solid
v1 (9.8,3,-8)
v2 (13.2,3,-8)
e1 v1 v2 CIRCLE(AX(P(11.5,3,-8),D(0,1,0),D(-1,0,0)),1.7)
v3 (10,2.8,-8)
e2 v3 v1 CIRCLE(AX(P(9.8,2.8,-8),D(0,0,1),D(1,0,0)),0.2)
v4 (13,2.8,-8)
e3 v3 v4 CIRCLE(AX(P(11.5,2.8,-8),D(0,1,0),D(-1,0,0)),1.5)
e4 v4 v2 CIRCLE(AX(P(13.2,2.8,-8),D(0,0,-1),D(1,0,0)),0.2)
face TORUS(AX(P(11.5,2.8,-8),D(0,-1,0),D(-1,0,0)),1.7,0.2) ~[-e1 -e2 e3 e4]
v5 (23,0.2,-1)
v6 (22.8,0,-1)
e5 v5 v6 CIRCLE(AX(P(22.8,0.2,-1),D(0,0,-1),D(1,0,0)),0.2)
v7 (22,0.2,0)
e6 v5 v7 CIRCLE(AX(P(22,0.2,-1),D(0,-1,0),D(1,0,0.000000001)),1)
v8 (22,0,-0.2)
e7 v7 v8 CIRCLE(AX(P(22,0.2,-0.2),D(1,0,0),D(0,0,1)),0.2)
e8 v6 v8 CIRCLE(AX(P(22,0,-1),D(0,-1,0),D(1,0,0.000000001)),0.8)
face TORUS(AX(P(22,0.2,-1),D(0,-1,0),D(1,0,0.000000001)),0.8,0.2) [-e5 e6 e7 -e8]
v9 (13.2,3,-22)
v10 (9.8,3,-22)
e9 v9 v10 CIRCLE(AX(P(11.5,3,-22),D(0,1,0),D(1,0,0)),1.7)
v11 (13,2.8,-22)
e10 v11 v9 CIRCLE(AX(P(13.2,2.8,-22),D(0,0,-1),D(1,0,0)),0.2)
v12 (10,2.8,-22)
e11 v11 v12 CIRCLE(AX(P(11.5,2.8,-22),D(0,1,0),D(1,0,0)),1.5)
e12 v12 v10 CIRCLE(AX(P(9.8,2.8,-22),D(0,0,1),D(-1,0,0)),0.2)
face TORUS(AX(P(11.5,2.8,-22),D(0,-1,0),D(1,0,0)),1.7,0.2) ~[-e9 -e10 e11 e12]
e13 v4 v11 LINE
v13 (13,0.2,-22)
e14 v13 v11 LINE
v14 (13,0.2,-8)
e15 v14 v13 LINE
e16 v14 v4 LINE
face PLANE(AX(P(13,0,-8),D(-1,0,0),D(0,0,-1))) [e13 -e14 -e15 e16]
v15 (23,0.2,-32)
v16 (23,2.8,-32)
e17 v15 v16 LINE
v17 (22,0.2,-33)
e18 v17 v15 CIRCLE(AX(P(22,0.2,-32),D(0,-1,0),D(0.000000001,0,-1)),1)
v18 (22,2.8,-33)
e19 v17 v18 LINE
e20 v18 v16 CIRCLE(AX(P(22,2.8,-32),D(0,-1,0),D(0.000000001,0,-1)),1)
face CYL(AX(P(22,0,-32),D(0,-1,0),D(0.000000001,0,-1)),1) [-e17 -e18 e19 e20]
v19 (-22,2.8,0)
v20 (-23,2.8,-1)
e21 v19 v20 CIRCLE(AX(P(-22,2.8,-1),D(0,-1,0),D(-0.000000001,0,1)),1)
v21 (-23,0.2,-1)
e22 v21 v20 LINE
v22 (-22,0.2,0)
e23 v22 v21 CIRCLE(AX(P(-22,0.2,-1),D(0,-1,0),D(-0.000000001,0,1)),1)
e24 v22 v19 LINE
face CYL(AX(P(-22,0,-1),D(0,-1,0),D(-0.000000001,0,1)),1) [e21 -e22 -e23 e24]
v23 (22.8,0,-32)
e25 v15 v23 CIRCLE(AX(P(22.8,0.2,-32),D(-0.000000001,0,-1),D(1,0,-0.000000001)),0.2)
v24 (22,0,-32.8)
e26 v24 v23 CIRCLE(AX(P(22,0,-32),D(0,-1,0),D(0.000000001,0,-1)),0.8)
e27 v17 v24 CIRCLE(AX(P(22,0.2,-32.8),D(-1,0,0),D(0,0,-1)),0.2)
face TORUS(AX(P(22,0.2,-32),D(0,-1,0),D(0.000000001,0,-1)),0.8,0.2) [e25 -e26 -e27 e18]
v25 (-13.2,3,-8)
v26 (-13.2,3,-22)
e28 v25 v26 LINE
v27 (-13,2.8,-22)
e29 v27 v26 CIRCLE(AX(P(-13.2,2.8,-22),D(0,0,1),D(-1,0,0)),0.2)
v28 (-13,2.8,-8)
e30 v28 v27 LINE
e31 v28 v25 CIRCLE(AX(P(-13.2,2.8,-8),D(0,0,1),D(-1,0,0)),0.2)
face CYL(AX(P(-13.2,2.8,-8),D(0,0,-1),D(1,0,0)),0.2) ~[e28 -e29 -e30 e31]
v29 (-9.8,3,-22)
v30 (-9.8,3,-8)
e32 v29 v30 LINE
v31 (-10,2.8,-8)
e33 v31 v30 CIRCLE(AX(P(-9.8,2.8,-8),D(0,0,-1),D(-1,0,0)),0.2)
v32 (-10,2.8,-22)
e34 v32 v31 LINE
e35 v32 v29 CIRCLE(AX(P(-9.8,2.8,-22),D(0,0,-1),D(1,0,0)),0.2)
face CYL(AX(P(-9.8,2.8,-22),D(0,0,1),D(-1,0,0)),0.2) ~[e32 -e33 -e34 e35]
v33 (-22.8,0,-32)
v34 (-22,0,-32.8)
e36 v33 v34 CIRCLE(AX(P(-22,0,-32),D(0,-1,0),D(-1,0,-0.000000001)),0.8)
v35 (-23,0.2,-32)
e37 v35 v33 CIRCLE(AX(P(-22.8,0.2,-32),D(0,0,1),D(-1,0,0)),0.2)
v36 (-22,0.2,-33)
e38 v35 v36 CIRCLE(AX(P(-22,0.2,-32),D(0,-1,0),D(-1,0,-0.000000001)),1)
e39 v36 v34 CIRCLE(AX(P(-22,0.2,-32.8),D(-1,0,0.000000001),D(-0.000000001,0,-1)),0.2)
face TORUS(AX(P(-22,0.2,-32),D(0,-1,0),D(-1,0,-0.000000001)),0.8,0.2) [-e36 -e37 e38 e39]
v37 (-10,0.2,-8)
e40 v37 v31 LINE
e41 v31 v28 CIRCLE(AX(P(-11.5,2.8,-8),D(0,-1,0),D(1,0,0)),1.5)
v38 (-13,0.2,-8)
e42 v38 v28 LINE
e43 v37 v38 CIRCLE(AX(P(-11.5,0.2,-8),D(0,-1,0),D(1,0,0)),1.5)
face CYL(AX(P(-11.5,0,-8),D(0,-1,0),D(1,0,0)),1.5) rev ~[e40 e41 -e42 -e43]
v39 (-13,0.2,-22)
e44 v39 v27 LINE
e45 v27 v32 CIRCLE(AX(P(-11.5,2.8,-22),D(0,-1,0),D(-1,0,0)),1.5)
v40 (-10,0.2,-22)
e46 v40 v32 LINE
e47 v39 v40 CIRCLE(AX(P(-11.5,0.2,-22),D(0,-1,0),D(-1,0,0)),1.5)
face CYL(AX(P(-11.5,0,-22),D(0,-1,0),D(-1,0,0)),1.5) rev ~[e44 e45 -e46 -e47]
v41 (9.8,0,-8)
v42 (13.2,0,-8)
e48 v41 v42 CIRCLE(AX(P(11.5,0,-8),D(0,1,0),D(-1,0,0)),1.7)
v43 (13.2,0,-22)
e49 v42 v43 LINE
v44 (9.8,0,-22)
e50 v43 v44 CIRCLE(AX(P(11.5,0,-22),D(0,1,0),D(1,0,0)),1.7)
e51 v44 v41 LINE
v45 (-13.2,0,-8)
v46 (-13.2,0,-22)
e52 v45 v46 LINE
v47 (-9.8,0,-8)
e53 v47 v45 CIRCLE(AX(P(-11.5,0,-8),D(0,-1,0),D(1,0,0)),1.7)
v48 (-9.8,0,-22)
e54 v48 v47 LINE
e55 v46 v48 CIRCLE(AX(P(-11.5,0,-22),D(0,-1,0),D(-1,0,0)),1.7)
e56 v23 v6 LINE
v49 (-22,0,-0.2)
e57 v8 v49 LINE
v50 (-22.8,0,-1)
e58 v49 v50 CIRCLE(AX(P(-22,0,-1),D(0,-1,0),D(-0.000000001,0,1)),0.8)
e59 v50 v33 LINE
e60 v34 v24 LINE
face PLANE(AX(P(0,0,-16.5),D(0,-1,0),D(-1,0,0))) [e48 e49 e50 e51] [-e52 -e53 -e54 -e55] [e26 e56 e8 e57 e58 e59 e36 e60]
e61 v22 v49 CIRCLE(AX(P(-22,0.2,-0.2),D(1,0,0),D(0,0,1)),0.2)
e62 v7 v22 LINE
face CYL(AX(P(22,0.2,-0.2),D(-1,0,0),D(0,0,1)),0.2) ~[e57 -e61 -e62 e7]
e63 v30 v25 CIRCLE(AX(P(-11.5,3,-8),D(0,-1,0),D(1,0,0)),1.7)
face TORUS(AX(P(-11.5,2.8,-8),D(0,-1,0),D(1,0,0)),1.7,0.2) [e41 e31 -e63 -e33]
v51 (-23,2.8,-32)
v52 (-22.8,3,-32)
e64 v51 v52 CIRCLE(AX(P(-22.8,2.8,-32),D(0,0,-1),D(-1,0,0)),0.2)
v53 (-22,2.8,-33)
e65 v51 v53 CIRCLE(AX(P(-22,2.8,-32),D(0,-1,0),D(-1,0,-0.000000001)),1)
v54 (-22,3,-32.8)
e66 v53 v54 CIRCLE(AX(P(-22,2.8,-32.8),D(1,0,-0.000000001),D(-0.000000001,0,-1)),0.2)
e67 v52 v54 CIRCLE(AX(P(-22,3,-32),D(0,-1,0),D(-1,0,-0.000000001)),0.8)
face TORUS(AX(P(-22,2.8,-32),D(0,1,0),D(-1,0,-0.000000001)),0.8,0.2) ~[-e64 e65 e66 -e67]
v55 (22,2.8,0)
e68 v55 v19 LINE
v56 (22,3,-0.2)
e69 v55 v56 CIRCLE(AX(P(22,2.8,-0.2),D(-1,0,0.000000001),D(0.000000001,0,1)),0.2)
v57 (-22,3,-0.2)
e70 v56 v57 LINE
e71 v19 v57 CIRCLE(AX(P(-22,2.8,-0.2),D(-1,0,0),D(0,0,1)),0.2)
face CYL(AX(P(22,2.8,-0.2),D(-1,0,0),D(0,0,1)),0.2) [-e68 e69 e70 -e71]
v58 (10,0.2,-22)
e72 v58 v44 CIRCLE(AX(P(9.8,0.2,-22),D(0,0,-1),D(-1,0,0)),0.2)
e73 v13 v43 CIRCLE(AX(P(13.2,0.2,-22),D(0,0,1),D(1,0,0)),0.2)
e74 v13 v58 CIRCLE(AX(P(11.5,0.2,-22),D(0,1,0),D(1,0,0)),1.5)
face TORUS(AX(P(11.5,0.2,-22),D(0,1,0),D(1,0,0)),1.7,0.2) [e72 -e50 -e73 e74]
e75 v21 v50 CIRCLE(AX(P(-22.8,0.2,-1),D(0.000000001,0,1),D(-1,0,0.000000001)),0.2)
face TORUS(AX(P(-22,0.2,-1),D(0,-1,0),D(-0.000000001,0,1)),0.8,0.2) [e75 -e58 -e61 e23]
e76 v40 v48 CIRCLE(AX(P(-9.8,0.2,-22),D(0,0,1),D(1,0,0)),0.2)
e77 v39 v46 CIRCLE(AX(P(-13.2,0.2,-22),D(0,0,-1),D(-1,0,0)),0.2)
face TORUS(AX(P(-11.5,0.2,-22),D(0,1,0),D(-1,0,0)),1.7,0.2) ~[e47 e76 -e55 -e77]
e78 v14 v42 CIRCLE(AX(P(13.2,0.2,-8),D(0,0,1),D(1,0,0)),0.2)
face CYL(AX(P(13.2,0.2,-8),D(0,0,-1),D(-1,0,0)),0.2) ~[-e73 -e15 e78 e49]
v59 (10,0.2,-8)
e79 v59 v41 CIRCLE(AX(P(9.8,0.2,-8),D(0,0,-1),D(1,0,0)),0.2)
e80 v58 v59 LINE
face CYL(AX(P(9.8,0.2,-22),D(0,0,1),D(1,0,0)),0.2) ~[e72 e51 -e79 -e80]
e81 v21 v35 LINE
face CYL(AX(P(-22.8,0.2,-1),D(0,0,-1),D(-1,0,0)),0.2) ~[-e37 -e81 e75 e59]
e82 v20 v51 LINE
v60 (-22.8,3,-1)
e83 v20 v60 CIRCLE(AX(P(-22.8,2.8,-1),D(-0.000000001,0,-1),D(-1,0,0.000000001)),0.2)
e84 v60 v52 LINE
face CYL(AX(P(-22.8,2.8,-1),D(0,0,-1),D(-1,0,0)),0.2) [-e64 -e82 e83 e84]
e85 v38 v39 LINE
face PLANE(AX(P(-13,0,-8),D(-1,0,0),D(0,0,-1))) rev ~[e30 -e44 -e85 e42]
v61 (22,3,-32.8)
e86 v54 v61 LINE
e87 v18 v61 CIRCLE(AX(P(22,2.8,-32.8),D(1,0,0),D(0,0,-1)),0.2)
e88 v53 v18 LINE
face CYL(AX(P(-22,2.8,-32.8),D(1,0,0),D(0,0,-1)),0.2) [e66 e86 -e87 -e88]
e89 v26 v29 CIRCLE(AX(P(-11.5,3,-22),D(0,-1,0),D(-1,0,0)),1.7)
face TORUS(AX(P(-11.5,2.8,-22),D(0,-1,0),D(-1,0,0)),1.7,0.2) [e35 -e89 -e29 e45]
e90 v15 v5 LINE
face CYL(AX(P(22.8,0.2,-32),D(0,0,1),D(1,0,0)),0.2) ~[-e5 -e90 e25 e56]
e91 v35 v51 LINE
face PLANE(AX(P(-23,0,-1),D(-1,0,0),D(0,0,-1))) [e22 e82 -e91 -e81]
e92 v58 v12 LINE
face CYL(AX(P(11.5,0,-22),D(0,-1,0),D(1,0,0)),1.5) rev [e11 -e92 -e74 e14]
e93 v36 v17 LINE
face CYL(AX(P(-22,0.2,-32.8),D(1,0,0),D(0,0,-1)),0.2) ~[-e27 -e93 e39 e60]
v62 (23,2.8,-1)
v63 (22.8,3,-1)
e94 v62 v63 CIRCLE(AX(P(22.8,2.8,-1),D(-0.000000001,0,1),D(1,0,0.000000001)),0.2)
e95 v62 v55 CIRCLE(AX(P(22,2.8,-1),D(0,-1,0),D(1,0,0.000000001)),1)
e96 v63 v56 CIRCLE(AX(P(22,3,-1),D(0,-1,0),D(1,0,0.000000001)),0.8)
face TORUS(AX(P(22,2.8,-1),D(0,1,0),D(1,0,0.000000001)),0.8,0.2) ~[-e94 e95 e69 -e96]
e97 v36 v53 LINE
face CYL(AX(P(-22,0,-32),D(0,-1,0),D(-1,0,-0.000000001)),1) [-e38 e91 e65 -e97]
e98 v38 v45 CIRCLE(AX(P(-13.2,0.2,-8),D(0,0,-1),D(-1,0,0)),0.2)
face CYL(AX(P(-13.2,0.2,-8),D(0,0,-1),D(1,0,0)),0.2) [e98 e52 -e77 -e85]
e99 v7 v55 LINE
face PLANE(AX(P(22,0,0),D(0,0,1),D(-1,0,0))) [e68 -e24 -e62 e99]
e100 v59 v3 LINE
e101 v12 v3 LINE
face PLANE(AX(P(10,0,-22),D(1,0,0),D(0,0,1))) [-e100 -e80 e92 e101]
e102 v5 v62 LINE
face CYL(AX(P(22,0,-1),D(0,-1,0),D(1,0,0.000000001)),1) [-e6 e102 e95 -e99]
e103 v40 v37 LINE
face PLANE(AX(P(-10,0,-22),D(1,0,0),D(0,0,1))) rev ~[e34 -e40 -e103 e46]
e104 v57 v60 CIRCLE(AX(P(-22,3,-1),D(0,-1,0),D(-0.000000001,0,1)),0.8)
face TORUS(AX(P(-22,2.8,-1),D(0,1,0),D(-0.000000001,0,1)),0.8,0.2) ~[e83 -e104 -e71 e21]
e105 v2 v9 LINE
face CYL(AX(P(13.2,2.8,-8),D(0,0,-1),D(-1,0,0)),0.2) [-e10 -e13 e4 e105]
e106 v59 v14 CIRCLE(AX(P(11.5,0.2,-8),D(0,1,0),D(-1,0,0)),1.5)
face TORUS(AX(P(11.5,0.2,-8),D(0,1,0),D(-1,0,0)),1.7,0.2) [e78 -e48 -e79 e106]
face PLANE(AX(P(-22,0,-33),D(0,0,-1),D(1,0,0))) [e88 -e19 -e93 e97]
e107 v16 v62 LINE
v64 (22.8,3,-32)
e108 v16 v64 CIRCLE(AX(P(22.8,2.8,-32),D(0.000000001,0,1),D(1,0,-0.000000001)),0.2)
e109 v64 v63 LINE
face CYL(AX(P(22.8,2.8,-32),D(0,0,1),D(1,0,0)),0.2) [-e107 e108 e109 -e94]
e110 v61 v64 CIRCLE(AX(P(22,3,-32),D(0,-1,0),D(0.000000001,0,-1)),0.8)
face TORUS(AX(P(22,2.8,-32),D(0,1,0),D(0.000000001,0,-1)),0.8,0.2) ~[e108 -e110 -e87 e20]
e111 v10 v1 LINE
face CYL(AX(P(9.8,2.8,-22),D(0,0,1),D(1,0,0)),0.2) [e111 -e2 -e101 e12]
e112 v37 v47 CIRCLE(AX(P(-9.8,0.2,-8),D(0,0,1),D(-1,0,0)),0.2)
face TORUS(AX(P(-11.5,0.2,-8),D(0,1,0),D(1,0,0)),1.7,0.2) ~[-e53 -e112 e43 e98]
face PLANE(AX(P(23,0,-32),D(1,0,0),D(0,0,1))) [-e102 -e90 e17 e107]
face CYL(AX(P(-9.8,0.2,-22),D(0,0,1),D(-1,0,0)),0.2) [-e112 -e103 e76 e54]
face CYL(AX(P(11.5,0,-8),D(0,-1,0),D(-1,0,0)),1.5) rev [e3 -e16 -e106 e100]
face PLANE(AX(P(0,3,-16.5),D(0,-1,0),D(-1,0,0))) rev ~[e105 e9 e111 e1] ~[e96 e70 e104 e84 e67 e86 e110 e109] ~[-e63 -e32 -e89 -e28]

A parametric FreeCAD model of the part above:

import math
import FreeCAD as App
import Part
import Sketcher


def edges_at(feature, points):
    """Names of the edges that pass closest to the given points."""
    edges = feature.Shape.Edges
    near = lambda p: min(range(len(edges)), key=lambda i: edges[i].distToShape(Part.Vertex(*p))[0])
    return sorted({f"Edge{near(p) + 1}" for p in points})

doc = App.newDocument("Part")
params = doc.addObject("Spreadsheet::Sheet", "Params")
for row, (alias, value) in enumerate([
    ("sketch1_radius", "1 mm"),
    ("sketch1_radius2", "1.5 mm"),
    ("sketch1_width", "44 mm"),
    ("sketch1_height", "31 mm"),
    ("sketch1_height2", "14 mm"),
    ("pad1_length", "3 mm"),
    ("fillet_radius", "0.2 mm"),
], start=1):
    params.set(f"A{row}", alias)
    params.set(f"B{row}", "=" + value)
    params.setAlias(f"B{row}", alias)

body = doc.addObject("PartDesign::Body", "Body")

# Sketch on XZ plane
sketch1 = body.newObject("Sketcher::SketchObject", "Sketch")
sketch1.AttachmentSupport = (doc.getObject("XZ_Plane"), [""])
sketch1.MapMode = "FlatFace"
sketch1.addGeometry(Part.LineSegment(App.Vector(-22, 0, 0), App.Vector(22, 0, 0)), False)
sketch1.addGeometry(Part.ArcOfCircle(Part.Circle(App.Vector(22, -1, 0), App.Vector(0, 0, 1), 1), math.radians(0), math.radians(90)), False)
sketch1.addGeometry(Part.LineSegment(App.Vector(23, -1, 0), App.Vector(23, -32, 0)), False)
sketch1.addGeometry(Part.ArcOfCircle(Part.Circle(App.Vector(22, -32, 0), App.Vector(0, 0, 1), 1), math.radians(-90), math.radians(0)), False)
sketch1.addGeometry(Part.LineSegment(App.Vector(22, -33, 0), App.Vector(-22, -33, 0)), False)
sketch1.addGeometry(Part.ArcOfCircle(Part.Circle(App.Vector(-22, -32, 0), App.Vector(0, 0, 1), 1), math.radians(-180), math.radians(-90)), False)
sketch1.addGeometry(Part.LineSegment(App.Vector(-23, -32, 0), App.Vector(-23, -1, 0)), False)
sketch1.addGeometry(Part.ArcOfCircle(Part.Circle(App.Vector(-22, -1, 0), App.Vector(0, 0, 1), 1), math.radians(90), math.radians(180)), False)
sketch1.addGeometry(Part.ArcOfCircle(Part.Circle(App.Vector(11.5, -22, 0), App.Vector(0, 0, 1), 1.5), math.radians(180), math.radians(360)), False)
sketch1.addGeometry(Part.LineSegment(App.Vector(13, -22, 0), App.Vector(13, -8, 0)), False)
sketch1.addGeometry(Part.ArcOfCircle(Part.Circle(App.Vector(11.5, -8, 0), App.Vector(0, 0, 1), 1.5), math.radians(0), math.radians(180)), False)
sketch1.addGeometry(Part.LineSegment(App.Vector(10, -8, 0), App.Vector(10, -22, 0)), False)
sketch1.addGeometry(Part.LineSegment(App.Vector(-10, -22, 0), App.Vector(-10, -8, 0)), False)
sketch1.addGeometry(Part.ArcOfCircle(Part.Circle(App.Vector(-11.5, -8, 0), App.Vector(0, 0, 1), 1.5), math.radians(0), math.radians(180)), False)
sketch1.addGeometry(Part.LineSegment(App.Vector(-13, -8, 0), App.Vector(-13, -22, 0)), False)
sketch1.addGeometry(Part.ArcOfCircle(Part.Circle(App.Vector(-11.5, -22, 0), App.Vector(0, 0, 1), 1.5), math.radians(180), math.radians(360)), False)
sketch1.addConstraint(Sketcher.Constraint("Tangent", 0, 2, 1, 2))
sketch1.addConstraint(Sketcher.Constraint("Tangent", 1, 1, 2, 1))
sketch1.addConstraint(Sketcher.Constraint("Tangent", 2, 2, 3, 2))
sketch1.addConstraint(Sketcher.Constraint("Tangent", 3, 1, 4, 1))
sketch1.addConstraint(Sketcher.Constraint("Tangent", 4, 2, 5, 2))
sketch1.addConstraint(Sketcher.Constraint("Tangent", 5, 1, 6, 1))
sketch1.addConstraint(Sketcher.Constraint("Tangent", 6, 2, 7, 2))
sketch1.addConstraint(Sketcher.Constraint("Tangent", 7, 1, 0, 1))
sketch1.addConstraint(Sketcher.Constraint("Tangent", 8, 2, 9, 1))
sketch1.addConstraint(Sketcher.Constraint("Tangent", 9, 2, 10, 1))
sketch1.addConstraint(Sketcher.Constraint("Tangent", 10, 2, 11, 1))
sketch1.addConstraint(Sketcher.Constraint("Tangent", 11, 2, 8, 1))
sketch1.addConstraint(Sketcher.Constraint("Tangent", 12, 2, 13, 1))
sketch1.addConstraint(Sketcher.Constraint("Tangent", 13, 2, 14, 1))
sketch1.addConstraint(Sketcher.Constraint("Tangent", 14, 2, 15, 1))
sketch1.addConstraint(Sketcher.Constraint("Tangent", 15, 2, 12, 1))
sketch1.addConstraint(Sketcher.Constraint("Horizontal", 0))
sketch1.addConstraint(Sketcher.Constraint("Vertical", 2))
sketch1.addConstraint(Sketcher.Constraint("Horizontal", 4))
sketch1.addConstraint(Sketcher.Constraint("Vertical", 6))
sketch1.addConstraint(Sketcher.Constraint("Vertical", 9))
sketch1.addConstraint(Sketcher.Constraint("Vertical", 11))
sketch1.addConstraint(Sketcher.Constraint("Vertical", 12))
sketch1.addConstraint(Sketcher.Constraint("Vertical", 14))
sketch1.addConstraint(Sketcher.Constraint("Equal", 1, 3))
sketch1.addConstraint(Sketcher.Constraint("Equal", 3, 5))
sketch1.addConstraint(Sketcher.Constraint("Equal", 5, 7))
sketch1.addConstraint(Sketcher.Constraint("Equal", 10, 13))
sketch1.addConstraint(Sketcher.Constraint("Symmetric", 0, 2, 7, 1, -1, 1))
sketch1.addConstraint(Sketcher.Constraint("Symmetric", 10, 3, 13, 3, -2))
sketch1.addConstraint(Sketcher.Constraint("Horizontal", 8, 3, 15, 3))
sketch1.addConstraint(Sketcher.Constraint("Radius", 1, 1.0))
sketch1.addConstraint(Sketcher.Constraint("Radius", 8, 1.5))
sketch1.addConstraint(Sketcher.Constraint("DistanceX", 0, 1, 0, 2, 44.0))
sketch1.addConstraint(Sketcher.Constraint("DistanceY", 2, 2, 2, 1, 31.0))
sketch1.addConstraint(Sketcher.Constraint("DistanceY", 9, 1, 9, 2, 14.0))
sketch1.addConstraint(Sketcher.Constraint("DistanceY", 8, 3, -1, 1, 22.0))
sketch1.addConstraint(Sketcher.Constraint("DistanceX", -1, 1, 8, 2, 13.0))
sketch1.setExpression("Constraints[31]", "Params.sketch1_radius")
sketch1.setExpression("Constraints[32]", "Params.sketch1_radius2")
sketch1.setExpression("Constraints[33]", "Params.sketch1_width")
sketch1.setExpression("Constraints[34]", "Params.sketch1_height")
sketch1.setExpression("Constraints[35]", "Params.sketch1_height2")
pad1 = body.newObject("PartDesign::Pad", "Pad")
pad1.Profile = sketch1
pad1.setExpression("Length", "Params.pad1_length")
pad1.Reversed = True
doc.recompute()

fillet = body.newObject("PartDesign::Fillet", "Fillet")
fillet.Base = (pad1, edges_at(pad1, [
    (22.707, 3, -0.293),
    (0, 0, 0),
    (-22.707, 0, -0.293),
    (23, 3, -16.5),
    (22.707, 3, -32.707),
    (0, 3, -33),
    (-22.707, 3, -32.707),
    (-11.5, 0, -23.5),
    (-13, 0, -15),
    (-11.5, 0, -6.5),
    (-10, 0, -15),
    (-23, 3, -16.5),
    (-11.5, 3, -23.5),
    (-13, 3, -15),
    (-11.5, 3, -6.5),
    (-10, 3, -15),
    (11.5, 0, -23.5),
    (10, 0, -15),
    (11.5, 0, -6.5),
    (13, 0, -15),
    (11.5, 3, -23.5),
    (10, 3, -15),
    (11.5, 3, -6.5),
    (13, 3, -15),
    (-22.707, 3, -0.293),
    (0, 3, 0),
    (-23, 0, -16.5),
    (-22.707, 0, -32.707),
    (0, 0, -33),
    (22.707, 0, -32.707),
    (23, 0, -16.5),
    (22.707, 0, -0.293),
]))
fillet.setExpression("Radius", "Params.fillet_radius")

doc.recompute()
